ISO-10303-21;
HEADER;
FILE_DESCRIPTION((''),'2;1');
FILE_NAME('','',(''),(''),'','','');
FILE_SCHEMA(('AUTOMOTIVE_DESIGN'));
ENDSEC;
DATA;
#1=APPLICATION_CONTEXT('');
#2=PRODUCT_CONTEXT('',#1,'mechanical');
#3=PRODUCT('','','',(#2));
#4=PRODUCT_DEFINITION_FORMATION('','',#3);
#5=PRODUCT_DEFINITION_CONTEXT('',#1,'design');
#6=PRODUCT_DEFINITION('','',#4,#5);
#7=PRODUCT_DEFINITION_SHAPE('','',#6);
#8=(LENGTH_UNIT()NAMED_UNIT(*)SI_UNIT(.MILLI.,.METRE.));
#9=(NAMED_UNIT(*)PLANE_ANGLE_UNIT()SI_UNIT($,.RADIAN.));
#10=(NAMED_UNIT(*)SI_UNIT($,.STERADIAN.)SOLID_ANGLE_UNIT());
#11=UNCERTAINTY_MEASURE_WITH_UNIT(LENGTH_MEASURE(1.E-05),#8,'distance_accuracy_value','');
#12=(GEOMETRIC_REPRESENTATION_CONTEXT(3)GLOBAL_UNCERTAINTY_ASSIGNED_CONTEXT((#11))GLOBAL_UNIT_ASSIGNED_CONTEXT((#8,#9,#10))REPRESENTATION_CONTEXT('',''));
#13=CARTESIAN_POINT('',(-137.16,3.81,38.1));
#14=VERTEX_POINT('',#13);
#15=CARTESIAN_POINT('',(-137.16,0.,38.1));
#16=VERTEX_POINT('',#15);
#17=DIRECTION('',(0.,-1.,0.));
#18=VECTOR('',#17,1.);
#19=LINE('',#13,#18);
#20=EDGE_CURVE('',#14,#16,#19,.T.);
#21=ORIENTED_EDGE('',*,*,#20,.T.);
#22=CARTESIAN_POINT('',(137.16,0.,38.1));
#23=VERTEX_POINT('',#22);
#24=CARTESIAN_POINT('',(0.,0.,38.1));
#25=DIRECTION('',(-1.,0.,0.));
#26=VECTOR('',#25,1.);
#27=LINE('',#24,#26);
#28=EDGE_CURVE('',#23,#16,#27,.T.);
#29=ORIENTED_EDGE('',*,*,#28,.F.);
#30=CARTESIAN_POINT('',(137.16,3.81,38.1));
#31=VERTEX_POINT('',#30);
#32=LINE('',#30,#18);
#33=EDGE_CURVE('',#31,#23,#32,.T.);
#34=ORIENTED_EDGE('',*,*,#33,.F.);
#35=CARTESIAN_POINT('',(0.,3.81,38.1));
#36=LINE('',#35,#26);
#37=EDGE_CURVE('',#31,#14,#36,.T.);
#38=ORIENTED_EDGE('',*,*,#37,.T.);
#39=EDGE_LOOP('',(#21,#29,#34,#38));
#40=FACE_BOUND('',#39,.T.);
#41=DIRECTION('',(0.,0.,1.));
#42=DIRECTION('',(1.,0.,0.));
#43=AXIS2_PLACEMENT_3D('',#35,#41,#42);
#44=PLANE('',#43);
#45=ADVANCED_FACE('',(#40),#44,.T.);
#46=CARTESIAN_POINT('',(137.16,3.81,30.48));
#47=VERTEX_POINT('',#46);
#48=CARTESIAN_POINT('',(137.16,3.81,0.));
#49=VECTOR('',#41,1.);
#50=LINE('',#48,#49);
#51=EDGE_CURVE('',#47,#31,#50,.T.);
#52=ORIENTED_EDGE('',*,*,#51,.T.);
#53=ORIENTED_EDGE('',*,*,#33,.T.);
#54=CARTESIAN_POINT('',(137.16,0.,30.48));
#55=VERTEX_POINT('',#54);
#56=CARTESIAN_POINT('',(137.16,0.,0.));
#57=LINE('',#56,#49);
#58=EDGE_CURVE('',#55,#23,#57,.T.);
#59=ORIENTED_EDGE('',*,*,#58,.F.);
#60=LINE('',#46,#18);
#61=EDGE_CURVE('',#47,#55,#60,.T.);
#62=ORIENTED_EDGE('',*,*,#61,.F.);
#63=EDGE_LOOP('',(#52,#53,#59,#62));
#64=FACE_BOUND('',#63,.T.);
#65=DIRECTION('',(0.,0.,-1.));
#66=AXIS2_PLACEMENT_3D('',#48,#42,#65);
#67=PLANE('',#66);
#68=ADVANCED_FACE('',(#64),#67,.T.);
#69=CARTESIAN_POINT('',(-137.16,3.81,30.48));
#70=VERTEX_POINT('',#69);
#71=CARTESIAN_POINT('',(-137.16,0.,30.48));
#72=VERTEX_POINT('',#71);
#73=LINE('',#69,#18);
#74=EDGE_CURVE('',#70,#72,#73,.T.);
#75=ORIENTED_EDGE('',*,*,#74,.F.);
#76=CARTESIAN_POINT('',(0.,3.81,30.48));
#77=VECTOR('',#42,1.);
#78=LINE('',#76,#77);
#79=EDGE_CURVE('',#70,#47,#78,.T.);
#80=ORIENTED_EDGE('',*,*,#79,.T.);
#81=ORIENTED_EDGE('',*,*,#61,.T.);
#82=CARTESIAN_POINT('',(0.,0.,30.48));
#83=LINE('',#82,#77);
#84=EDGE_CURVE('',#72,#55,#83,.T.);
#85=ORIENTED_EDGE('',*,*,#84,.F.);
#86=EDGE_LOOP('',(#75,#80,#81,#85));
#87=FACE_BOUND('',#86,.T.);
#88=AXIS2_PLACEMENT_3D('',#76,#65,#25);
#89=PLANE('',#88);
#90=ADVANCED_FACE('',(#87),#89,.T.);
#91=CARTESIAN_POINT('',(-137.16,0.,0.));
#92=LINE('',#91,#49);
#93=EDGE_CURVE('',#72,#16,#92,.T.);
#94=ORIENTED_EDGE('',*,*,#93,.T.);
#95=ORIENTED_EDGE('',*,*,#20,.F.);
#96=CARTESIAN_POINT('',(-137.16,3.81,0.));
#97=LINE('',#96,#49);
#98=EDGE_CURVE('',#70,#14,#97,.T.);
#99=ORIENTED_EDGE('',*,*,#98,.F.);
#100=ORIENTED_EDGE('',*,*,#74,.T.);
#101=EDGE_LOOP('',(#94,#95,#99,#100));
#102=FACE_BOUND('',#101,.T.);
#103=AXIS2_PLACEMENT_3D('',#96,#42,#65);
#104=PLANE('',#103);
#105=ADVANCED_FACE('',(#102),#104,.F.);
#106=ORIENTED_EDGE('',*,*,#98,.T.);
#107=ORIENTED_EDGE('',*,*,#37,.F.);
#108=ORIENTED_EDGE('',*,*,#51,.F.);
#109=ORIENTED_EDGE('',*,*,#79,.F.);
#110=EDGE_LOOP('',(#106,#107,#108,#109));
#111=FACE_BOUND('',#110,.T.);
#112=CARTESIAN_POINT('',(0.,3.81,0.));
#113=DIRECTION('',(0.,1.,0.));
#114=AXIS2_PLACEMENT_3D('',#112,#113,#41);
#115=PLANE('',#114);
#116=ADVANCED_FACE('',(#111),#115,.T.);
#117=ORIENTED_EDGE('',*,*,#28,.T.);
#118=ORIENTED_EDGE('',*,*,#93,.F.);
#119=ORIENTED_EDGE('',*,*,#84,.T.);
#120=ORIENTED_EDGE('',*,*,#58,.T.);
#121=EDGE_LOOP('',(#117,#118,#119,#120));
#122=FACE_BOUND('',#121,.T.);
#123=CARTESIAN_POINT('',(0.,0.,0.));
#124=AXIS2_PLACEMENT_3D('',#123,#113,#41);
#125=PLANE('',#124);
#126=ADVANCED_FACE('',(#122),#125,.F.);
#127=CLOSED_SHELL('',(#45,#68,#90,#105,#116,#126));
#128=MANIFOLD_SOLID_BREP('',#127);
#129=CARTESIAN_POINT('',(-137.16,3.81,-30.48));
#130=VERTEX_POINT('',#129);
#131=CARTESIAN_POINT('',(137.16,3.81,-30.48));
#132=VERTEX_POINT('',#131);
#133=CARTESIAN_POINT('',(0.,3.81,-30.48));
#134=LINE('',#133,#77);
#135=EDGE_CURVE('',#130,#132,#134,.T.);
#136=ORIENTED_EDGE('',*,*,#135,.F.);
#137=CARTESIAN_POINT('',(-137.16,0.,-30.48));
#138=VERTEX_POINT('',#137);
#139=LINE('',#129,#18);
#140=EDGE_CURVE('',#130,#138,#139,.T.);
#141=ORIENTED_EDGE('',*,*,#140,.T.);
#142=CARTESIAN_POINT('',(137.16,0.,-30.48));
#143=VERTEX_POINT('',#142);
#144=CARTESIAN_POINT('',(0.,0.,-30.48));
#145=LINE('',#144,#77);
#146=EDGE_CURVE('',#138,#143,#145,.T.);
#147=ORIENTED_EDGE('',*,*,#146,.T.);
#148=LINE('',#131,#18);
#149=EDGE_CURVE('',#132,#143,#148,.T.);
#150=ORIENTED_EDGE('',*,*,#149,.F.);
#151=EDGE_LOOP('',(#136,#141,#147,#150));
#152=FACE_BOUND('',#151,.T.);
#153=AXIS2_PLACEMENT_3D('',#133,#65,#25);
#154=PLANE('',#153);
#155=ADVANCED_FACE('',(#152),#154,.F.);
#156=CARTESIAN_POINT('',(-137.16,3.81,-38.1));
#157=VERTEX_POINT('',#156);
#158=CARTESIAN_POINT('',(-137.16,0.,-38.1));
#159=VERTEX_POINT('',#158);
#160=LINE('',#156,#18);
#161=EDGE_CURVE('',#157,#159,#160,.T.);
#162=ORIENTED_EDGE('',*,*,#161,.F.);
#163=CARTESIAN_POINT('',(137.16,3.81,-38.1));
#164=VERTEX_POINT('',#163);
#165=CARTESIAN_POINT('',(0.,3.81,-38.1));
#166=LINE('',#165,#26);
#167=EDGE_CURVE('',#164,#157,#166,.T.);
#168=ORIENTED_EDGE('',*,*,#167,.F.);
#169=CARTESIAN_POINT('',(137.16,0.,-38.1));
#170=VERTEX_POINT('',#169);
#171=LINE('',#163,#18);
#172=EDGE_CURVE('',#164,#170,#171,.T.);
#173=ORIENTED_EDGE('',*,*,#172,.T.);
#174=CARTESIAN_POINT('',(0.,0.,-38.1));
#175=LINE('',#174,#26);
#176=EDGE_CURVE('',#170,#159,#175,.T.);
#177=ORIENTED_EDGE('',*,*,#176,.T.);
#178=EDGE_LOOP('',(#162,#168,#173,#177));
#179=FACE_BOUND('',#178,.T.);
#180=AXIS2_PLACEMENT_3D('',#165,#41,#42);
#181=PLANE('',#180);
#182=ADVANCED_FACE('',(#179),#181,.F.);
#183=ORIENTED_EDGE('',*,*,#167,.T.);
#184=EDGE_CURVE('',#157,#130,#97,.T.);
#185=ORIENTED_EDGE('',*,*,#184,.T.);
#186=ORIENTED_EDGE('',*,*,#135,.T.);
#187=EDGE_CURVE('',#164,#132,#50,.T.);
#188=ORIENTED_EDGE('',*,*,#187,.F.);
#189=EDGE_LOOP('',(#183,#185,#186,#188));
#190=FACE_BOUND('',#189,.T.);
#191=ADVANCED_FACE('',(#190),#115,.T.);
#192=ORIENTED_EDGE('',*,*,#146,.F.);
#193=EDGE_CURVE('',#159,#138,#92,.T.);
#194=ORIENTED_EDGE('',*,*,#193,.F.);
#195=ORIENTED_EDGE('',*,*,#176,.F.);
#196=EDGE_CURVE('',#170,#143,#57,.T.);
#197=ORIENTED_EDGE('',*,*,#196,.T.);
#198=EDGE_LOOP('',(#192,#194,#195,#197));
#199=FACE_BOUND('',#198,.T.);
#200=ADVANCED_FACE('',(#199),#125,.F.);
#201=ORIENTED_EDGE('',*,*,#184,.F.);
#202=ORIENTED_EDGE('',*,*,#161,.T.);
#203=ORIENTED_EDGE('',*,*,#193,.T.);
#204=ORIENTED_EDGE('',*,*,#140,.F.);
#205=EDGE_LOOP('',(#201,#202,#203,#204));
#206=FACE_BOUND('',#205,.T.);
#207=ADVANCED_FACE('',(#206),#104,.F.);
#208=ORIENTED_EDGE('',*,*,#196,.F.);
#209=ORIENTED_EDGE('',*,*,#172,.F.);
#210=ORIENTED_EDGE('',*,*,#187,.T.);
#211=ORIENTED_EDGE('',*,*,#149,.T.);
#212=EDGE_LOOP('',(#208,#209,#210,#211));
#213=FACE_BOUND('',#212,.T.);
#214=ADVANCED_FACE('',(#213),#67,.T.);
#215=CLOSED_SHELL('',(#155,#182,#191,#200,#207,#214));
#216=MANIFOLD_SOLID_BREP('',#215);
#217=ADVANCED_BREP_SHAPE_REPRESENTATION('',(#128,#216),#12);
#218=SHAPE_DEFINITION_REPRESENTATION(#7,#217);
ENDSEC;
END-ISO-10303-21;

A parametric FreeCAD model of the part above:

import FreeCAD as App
import Part
import Sketcher
from FreeCAD import Vector
Q = App.Units.Quantity

doc = App.newDocument("Part")
body = doc.addObject("PartDesign::Body", "Body")

sketch1 = body.newObject("Sketcher::SketchObject", "Sketch")
sketch1.AttachmentSupport = (doc.getObject("XZ_Plane"), [""])
sketch1.MapMode = "FlatFace"
sketch1.addGeometry([
    Part.LineSegment(Vector(-137.16, 30.48, 0), Vector(-137.16, 38.1, 0)),
    Part.LineSegment(Vector(-137.16, 38.1, 0), Vector(137.16, 38.1, 0)),
    Part.LineSegment(Vector(137.16, 38.1, 0), Vector(137.16, 30.48, 0)),
    Part.LineSegment(Vector(137.16, 30.48, 0), Vector(-137.16, 30.48, 0)),
], False)
sketch1.addConstraint([
    Sketcher.Constraint("Coincident", 0, 2, 1, 1),
    Sketcher.Constraint("Coincident", 1, 2, 2, 1),
    Sketcher.Constraint("Coincident", 2, 2, 3, 1),
    Sketcher.Constraint("Coincident", 3, 2, 0, 1),
    Sketcher.Constraint("Vertical", 0),
    Sketcher.Constraint("Horizontal", 1),
    Sketcher.Constraint("Vertical", 2),
    Sketcher.Constraint("Horizontal", 3),
    Sketcher.Constraint("DistanceX", 1, 1, 1, 2, Q("10.8 in")),
    Sketcher.Constraint("DistanceY", 0, 1, 0, 2, Q("0.3 in")),
    Sketcher.Constraint("DistanceX", 0, 2, -1, 1, Q("5.4 in")),
    Sketcher.Constraint("DistanceY", -1, 1, 0, 2, Q("1.5 in")),
])
pad1 = body.newObject("PartDesign::Pad", "Pad")
pad1.Profile = sketch1
pad1.Length = Q("0.15 in")
pad1.Reversed = True
body2 = doc.addObject("PartDesign::Body", "Body001")

sketch2 = body2.newObject("Sketcher::SketchObject", "Sketch001")
sketch2.AttachmentSupport = (doc.getObject("XZ_Plane001"), [""])
sketch2.MapMode = "FlatFace"
sketch2.addGeometry([
    Part.LineSegment(Vector(-137.16, -38.1, 0), Vector(-137.16, -30.48, 0)),
    Part.LineSegment(Vector(-137.16, -30.48, 0), Vector(137.16, -30.48, 0)),
    Part.LineSegment(Vector(137.16, -30.48, 0), Vector(137.16, -38.1, 0)),
    Part.LineSegment(Vector(137.16, -38.1, 0), Vector(-137.16, -38.1, 0)),
], False)
sketch2.addConstraint([
    Sketcher.Constraint("Coincident", 0, 2, 1, 1),
    Sketcher.Constraint("Coincident", 1, 2, 2, 1),
    Sketcher.Constraint("Coincident", 2, 2, 3, 1),
    Sketcher.Constraint("Coincident", 3, 2, 0, 1),
    Sketcher.Constraint("Vertical", 0),
    Sketcher.Constraint("Horizontal", 1),
    Sketcher.Constraint("Vertical", 2),
    Sketcher.Constraint("Horizontal", 3),
    Sketcher.Constraint("DistanceX", 1, 1, 1, 2, Q("10.8 in")),
    Sketcher.Constraint("DistanceY", 0, 1, 0, 2, Q("0.3 in")),
    Sketcher.Constraint("DistanceX", 0, 2, -1, 1, Q("5.4 in")),
    Sketcher.Constraint("DistanceY", 0, 2, -1, 1, Q("1.2 in")),
])
pad2 = body2.newObject("PartDesign::Pad", "Pad001")
pad2.Profile = sketch2
pad2.Length = Q("0.15 in")
pad2.Reversed = True

doc.recompute()
